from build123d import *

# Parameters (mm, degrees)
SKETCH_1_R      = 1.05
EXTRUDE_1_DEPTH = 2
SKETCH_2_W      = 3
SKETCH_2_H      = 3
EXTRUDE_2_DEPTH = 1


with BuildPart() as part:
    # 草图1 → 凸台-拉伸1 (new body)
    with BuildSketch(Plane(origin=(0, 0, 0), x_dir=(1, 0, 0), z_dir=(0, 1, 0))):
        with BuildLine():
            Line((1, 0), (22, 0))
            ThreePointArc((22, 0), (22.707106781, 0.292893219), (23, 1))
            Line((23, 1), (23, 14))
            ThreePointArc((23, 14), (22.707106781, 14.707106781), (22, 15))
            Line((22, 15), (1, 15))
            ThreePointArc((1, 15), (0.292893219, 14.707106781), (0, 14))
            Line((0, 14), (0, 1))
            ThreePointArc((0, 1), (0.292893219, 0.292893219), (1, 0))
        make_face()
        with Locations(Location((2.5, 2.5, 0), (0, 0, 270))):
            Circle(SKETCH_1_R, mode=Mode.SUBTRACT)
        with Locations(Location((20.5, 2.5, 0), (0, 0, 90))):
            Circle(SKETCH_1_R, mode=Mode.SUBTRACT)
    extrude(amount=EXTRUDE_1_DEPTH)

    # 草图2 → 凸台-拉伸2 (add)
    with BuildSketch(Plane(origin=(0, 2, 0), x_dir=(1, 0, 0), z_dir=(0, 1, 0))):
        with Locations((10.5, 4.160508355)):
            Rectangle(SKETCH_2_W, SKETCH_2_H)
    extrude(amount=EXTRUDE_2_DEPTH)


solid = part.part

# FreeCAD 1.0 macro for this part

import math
import FreeCAD as App
import Part
import Sketcher

V = App.Vector

doc = App.newDocument("Part")
body = doc.addObject("PartDesign::Body", "Body")

# Sketch on XZ plane
sketch1 = body.newObject("Sketcher::SketchObject", "Sketch")
sketch1.AttachmentSupport = (doc.getObject("XZ_Plane"), [""])
sketch1.MapMode = "FlatFace"
sketch1.addGeometry([
    Part.LineSegment(V(1, 0, 0), V(22, 0, 0)),  # 0
    Part.ArcOfCircle(Part.Circle(V(22, -1, 0), V(0, 0, 1), 1), math.radians(0), math.radians(90)),  # 1
    Part.LineSegment(V(23, -1, 0), V(23, -14, 0)),  # 2
    Part.ArcOfCircle(Part.Circle(V(22, -14, 0), V(0, 0, 1), 1), math.radians(-90), math.radians(0)),  # 3
    Part.LineSegment(V(22, -15, 0), V(1, -15, 0)),  # 4
    Part.ArcOfCircle(Part.Circle(V(1, -14, 0), V(0, 0, 1), 1), math.radians(-180), math.radians(-90)),  # 5
    Part.LineSegment(V(0, -14, 0), V(0, -1, 0)),  # 6
    Part.ArcOfCircle(Part.Circle(V(1, -1, 0), V(0, 0, 1), 1), math.radians(90), math.radians(180)),  # 7
    Part.Circle(V(2.5, -2.5, 0), V(0, 0, 1), 1.1),  # 8
    Part.Circle(V(20.5, -2.5, 0), V(0, 0, 1), 1.1),  # 9
], False)
sketch1.addConstraint([
    Sketcher.Constraint("Tangent", 0, 2, 1, 2),
    Sketcher.Constraint("Tangent", 1, 1, 2, 1),
    Sketcher.Constraint("Tangent", 2, 2, 3, 2),
    Sketcher.Constraint("Tangent", 3, 1, 4, 1),
    Sketcher.Constraint("Tangent", 4, 2, 5, 2),
    Sketcher.Constraint("Tangent", 5, 1, 6, 1),
    Sketcher.Constraint("Tangent", 6, 2, 7, 2),
    Sketcher.Constraint("Tangent", 7, 1, 0, 1),
    Sketcher.Constraint("Horizontal", 0),
    Sketcher.Constraint("Vertical", 2),
    Sketcher.Constraint("Horizontal", 4),
    Sketcher.Constraint("Vertical", 6),
    Sketcher.Constraint("Equal", 1, 3),
    Sketcher.Constraint("Equal", 3, 5),
    Sketcher.Constraint("Equal", 5, 7),
    Sketcher.Constraint("Equal", 8, 9),
    Sketcher.Constraint("PointOnObject", 0, 2, -1),
    Sketcher.Constraint("PointOnObject", 5, 1, -2),
    Sketcher.Constraint("Horizontal", 8, 3, 9, 3),
    Sketcher.Constraint("Radius", 1, 1.0),
    Sketcher.Constraint("Diameter", 8, 2.1),
    Sketcher.Constraint("DistanceX", 0, 1, 0, 2, 21.0),
    Sketcher.Constraint("DistanceY", 2, 2, 2, 1, 13.0),
    Sketcher.Constraint("DistanceX", 8, 3, 9, 3, 18.0),
    Sketcher.Constraint("DistanceX", -1, 1, 8, 3, 2.5),
    Sketcher.Constraint("DistanceY", 8, 3, -1, 1, 2.5),
])
pad1 = body.newObject("PartDesign::Pad", "Pad")
pad1.Profile = sketch1
pad1.Length = 2
pad1.Reversed = True

# Sketch on XZ plane
sketch2 = body.newObject("Sketcher::SketchObject", "Sketch001")
sketch2.AttachmentSupport = (doc.getObject("XZ_Plane"), [""])
sketch2.MapMode = "FlatFace"
sketch2.AttachmentOffset = App.Placement(V(0, 0, -2), App.Rotation())
sketch2.addGeometry([
    Part.LineSegment(V(9, -5.7, 0), V(9, -2.7, 0)),
    Part.LineSegment(V(9, -2.7, 0), V(12, -2.7, 0)),
    Part.LineSegment(V(12, -2.7, 0), V(12, -5.7, 0)),
    Part.LineSegment(V(12, -5.7, 0), V(9, -5.7, 0)),
], False)
sketch2.addConstraint([
    Sketcher.Constraint("Coincident", 0, 2, 1, 1),
    Sketcher.Constraint("Coincident", 1, 2, 2, 1),
    Sketcher.Constraint("Coincident", 2, 2, 3, 1),
    Sketcher.Constraint("Coincident", 3, 2, 0, 1),
    Sketcher.Constraint("Vertical", 0),
    Sketcher.Constraint("Horizontal", 1),
    Sketcher.Constraint("Vertical", 2),
    Sketcher.Constraint("Horizontal", 3),
    Sketcher.Constraint("Equal", 3, 0),
    Sketcher.Constraint("DistanceX", 1, 1, 1, 2, 3.0),
    Sketcher.Constraint("DistanceX", -1, 1, 0, 2, 9.0),
    Sketcher.Constraint("DistanceY", 0, 2, -1, 1, 2.660508),
])
pad2 = body.newObject("PartDesign::Pad", "Pad001")
pad2.Profile = sketch2
pad2.Length = 1
pad2.Reversed = True

doc.recompute()
